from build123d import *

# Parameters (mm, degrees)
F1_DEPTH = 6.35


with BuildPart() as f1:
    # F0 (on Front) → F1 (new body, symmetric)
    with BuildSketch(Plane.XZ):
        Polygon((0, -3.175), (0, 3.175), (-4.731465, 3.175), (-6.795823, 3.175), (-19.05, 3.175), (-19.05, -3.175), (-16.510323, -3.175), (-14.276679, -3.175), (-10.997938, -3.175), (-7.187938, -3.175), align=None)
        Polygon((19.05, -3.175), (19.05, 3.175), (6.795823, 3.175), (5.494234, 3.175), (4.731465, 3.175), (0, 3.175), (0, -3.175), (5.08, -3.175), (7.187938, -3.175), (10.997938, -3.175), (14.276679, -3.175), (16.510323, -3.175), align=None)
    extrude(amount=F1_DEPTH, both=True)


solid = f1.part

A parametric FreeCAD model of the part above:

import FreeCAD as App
import Part
import Sketcher

V = App.Vector
Q = App.Units.Quantity

doc = App.newDocument("Part")
params = doc.addObject("Spreadsheet::Sheet", "Params")
for row, (alias, value) in enumerate([
    ("sketch1_width", "1.5 in"),
    ("sketch1_height", "0.25 in"),
    ("pad1_length", "0.5 in"),
], start=1):
    params.set(f"A{row}", alias)
    params.set(f"B{row}", "=" + value)
    params.setAlias(f"B{row}", alias)

body = doc.addObject("PartDesign::Body", "Body")

# Sketch on XZ plane
sketch1 = doc.addObject("Sketcher::SketchObject", "Sketch")
body.addObject(sketch1)
sketch1.AttachmentSupport = (doc.XZ_Plane, [""])
sketch1.MapMode = "FlatFace"
sketch1.addGeometry([
    Part.LineSegment(V(-19.05, 3.175, 0), V(-19.05, -3.175, 0)),
    Part.LineSegment(V(-19.05, -3.175, 0), V(19.05, -3.175, 0)),
    Part.LineSegment(V(19.05, -3.175, 0), V(19.05, 3.175, 0)),
    Part.LineSegment(V(19.05, 3.175, 0), V(-19.05, 3.175, 0)),
], False)
sketch1.addConstraint([
    Sketcher.Constraint("Coincident", 0, 2, 1, 1),
    Sketcher.Constraint("Coincident", 1, 2, 2, 1),
    Sketcher.Constraint("Coincident", 2, 2, 3, 1),
    Sketcher.Constraint("Coincident", 3, 2, 0, 1),
    Sketcher.Constraint("Vertical", 0),
    Sketcher.Constraint("Horizontal", 1),
    Sketcher.Constraint("Vertical", 2),
    Sketcher.Constraint("Horizontal", 3),
    Sketcher.Constraint("Symmetric", 0, 2, 2, 2, -1, 1),
    Sketcher.Constraint("DistanceX", 1, 1, 1, 2, Q("1.5 in")),
    Sketcher.Constraint("DistanceY", 0, 2, 0, 1, Q("0.25 in")),
])
sketch1.setExpression("Constraints[9]", "Params.sketch1_width")
sketch1.setExpression("Constraints[10]", "Params.sketch1_height")
pad1 = doc.addObject("PartDesign::Pad", "Pad")
body.addObject(pad1)
pad1.Profile = sketch1
pad1.setExpression("Length", "Params.pad1_length")
pad1.Midplane = True

doc.recompute()
